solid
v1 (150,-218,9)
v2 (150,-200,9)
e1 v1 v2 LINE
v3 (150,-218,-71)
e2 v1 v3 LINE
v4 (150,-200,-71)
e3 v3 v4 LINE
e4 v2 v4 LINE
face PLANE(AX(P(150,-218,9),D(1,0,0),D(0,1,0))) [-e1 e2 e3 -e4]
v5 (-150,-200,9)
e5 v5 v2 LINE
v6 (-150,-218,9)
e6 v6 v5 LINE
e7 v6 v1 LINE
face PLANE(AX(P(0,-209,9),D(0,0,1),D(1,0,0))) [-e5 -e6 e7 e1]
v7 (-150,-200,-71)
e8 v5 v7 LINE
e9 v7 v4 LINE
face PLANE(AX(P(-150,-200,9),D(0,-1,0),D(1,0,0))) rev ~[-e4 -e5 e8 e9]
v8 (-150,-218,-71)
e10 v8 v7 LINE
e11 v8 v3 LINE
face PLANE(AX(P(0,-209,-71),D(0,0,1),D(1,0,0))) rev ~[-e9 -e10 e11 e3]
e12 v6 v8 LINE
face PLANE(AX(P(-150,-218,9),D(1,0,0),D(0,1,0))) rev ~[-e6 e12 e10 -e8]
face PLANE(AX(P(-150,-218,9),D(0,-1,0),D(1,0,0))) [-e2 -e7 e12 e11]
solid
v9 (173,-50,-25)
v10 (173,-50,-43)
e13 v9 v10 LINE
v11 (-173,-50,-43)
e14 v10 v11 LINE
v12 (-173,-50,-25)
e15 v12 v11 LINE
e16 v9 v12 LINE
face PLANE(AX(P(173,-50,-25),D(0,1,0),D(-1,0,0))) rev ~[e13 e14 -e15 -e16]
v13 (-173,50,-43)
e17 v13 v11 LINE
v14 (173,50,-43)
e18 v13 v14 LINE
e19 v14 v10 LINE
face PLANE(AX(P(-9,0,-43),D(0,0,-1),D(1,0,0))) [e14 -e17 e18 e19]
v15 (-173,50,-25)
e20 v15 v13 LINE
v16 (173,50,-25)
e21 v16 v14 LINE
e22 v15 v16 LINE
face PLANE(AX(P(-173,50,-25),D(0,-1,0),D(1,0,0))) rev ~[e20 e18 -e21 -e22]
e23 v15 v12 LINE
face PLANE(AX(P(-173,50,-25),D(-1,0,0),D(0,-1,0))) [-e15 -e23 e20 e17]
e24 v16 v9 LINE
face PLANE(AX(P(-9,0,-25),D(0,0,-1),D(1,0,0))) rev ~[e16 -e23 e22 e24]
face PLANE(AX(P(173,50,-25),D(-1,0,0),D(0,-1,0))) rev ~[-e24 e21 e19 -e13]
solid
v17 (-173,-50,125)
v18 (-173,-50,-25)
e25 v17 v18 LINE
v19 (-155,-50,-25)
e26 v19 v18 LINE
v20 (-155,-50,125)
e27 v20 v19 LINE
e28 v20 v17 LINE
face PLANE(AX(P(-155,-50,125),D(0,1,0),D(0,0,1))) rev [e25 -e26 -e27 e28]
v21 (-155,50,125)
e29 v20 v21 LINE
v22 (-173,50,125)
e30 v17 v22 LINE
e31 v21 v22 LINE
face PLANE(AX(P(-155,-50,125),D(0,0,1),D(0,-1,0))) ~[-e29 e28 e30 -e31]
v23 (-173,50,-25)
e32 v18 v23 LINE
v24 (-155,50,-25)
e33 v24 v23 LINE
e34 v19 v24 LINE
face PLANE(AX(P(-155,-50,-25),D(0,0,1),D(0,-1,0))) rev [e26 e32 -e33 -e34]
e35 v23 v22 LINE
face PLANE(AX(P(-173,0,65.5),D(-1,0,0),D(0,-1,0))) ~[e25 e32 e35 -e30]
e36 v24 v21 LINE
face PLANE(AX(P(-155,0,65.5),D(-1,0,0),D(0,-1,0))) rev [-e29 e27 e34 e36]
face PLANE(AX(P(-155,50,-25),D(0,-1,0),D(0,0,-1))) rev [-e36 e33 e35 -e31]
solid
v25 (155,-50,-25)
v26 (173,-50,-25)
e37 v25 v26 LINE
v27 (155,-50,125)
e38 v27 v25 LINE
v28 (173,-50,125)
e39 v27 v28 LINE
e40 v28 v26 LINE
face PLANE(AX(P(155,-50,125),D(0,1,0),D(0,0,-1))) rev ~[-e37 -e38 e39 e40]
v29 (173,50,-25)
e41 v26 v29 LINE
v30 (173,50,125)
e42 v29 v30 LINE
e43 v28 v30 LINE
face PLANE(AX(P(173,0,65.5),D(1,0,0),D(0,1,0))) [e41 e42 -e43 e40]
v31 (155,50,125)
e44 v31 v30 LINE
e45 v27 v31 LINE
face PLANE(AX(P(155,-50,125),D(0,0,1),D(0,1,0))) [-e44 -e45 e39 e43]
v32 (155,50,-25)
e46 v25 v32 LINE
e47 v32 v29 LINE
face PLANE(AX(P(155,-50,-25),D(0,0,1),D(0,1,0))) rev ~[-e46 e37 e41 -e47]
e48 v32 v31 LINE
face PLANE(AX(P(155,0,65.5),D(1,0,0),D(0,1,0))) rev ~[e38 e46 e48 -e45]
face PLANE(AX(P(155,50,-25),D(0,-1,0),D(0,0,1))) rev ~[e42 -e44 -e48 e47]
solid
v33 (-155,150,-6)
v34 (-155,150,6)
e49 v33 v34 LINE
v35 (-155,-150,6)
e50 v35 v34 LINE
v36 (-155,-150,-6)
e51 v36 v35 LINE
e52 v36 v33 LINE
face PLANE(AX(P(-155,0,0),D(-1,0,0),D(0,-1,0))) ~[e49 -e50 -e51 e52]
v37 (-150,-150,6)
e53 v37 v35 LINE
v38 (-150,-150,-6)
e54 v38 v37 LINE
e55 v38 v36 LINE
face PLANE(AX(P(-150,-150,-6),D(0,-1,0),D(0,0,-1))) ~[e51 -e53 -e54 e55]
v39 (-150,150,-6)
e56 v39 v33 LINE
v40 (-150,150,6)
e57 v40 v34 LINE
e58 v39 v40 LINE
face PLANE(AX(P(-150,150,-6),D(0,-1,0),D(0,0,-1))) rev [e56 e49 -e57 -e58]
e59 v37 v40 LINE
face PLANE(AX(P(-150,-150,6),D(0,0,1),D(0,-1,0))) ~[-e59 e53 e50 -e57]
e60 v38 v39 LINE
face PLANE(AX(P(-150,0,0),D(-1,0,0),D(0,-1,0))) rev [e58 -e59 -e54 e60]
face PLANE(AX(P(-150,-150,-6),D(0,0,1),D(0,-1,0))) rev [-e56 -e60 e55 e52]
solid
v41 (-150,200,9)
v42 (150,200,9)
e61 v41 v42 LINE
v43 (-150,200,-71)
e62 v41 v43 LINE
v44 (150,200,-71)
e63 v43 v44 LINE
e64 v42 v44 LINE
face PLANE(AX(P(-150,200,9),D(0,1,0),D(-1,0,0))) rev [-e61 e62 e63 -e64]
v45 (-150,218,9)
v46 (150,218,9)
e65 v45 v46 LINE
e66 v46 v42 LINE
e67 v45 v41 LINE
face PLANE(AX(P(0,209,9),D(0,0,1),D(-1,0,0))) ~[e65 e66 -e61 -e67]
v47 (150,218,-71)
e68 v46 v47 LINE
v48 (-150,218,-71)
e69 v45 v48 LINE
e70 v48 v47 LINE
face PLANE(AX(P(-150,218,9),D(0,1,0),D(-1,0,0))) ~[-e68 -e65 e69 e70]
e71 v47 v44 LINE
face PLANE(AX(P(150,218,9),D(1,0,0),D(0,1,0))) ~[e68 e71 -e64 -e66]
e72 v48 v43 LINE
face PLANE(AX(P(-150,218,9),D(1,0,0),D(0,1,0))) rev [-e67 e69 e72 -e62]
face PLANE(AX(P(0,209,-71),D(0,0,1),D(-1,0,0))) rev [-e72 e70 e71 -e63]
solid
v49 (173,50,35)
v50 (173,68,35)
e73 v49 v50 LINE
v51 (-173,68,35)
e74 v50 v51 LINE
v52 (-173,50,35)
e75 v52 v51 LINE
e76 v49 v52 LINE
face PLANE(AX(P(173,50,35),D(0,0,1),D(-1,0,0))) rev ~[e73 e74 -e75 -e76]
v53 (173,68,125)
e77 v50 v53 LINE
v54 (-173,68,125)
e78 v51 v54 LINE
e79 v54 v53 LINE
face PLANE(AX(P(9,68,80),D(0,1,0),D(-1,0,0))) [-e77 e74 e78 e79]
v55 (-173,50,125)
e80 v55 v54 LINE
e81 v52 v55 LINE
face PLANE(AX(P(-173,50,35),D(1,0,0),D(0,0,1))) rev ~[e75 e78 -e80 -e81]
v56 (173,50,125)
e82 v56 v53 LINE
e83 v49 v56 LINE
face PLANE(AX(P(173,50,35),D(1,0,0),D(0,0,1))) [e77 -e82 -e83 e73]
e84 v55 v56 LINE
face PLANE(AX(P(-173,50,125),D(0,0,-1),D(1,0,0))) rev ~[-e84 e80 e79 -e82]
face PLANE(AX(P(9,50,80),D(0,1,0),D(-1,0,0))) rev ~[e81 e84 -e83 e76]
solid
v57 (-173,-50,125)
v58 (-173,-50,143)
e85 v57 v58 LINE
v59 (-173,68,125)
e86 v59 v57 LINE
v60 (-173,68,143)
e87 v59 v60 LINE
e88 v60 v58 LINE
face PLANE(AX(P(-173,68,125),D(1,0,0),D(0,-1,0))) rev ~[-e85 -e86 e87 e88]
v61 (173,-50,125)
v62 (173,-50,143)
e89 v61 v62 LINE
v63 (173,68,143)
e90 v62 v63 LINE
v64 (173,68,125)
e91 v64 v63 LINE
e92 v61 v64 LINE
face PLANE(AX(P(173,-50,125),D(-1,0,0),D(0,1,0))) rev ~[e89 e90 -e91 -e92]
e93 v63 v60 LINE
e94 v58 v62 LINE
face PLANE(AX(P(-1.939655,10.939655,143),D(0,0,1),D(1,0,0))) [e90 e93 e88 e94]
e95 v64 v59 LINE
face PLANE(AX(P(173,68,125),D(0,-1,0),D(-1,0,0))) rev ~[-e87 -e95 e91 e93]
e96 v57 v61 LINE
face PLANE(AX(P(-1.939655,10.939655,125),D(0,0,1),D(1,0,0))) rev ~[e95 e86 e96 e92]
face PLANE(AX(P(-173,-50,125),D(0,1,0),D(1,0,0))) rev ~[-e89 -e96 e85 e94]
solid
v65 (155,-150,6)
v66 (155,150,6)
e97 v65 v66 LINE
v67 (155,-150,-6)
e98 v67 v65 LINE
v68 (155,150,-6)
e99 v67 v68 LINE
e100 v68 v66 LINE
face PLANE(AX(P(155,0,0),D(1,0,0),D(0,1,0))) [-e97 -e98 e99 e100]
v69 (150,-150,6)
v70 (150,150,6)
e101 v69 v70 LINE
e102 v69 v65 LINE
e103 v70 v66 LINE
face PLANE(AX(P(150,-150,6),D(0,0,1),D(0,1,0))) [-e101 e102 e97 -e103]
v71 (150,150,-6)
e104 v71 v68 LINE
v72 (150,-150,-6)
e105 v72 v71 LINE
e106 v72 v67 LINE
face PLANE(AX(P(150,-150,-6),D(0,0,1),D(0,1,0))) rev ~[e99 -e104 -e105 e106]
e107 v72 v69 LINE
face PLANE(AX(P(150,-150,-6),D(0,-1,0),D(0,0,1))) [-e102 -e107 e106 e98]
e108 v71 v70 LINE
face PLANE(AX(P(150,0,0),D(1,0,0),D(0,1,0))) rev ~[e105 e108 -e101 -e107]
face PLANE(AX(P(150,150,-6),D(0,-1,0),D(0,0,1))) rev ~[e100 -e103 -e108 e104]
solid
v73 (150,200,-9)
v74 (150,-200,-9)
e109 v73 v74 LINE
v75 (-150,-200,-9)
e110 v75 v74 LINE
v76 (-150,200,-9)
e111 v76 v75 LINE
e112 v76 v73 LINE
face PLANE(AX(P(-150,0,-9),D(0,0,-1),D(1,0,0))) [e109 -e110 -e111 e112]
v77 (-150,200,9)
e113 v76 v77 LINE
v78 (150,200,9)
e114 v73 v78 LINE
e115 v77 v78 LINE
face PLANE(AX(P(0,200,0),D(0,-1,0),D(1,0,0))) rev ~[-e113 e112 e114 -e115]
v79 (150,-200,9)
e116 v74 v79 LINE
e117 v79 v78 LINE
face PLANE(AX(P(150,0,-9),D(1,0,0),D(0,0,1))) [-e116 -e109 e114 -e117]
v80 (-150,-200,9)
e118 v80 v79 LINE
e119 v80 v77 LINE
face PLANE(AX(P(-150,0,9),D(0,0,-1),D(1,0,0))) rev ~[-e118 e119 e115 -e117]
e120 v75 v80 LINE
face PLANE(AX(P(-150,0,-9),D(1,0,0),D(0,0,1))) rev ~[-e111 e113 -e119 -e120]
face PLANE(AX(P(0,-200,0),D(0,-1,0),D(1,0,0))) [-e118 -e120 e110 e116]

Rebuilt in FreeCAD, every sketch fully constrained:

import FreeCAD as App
import Part
import Sketcher
Q = App.Units.Quantity

doc = App.newDocument("Part")
body = doc.addObject("PartDesign::Body", "Body")

# Sketch on XZ plane
sketch1 = doc.addObject("Sketcher::SketchObject", "Sketch")
body.addObject(sketch1)
sketch1.AttachmentSupport = (doc.XZ_Plane, [""])
sketch1.MapMode = "FlatFace"
sketch1.addGeometry(Part.LineSegment(App.Vector(-150, 9, 0), App.Vector(-150, -9, 0)), False)
sketch1.addGeometry(Part.LineSegment(App.Vector(-150, -9, 0), App.Vector(150, -9, 0)), False)
sketch1.addGeometry(Part.LineSegment(App.Vector(150, -9, 0), App.Vector(150, 9, 0)), False)
sketch1.addGeometry(Part.LineSegment(App.Vector(150, 9, 0), App.Vector(-150, 9, 0)), False)
sketch1.addConstraint(Sketcher.Constraint("Coincident", 0, 2, 1, 1))
sketch1.addConstraint(Sketcher.Constraint("Coincident", 1, 2, 2, 1))
sketch1.addConstraint(Sketcher.Constraint("Coincident", 2, 2, 3, 1))
sketch1.addConstraint(Sketcher.Constraint("Coincident", 3, 2, 0, 1))
sketch1.addConstraint(Sketcher.Constraint("Vertical", 0))
sketch1.addConstraint(Sketcher.Constraint("Horizontal", 1))
sketch1.addConstraint(Sketcher.Constraint("Vertical", 2))
sketch1.addConstraint(Sketcher.Constraint("Horizontal", 3))
sketch1.addConstraint(Sketcher.Constraint("Symmetric", 0, 2, 2, 2, -1, 1))
sketch1.addConstraint(Sketcher.Constraint("DistanceX", 1, 1, 1, 2, Q("300 mm")))
sketch1.addConstraint(Sketcher.Constraint("DistanceY", 0, 2, 0, 1, Q("18 mm")))
pad1 = doc.addObject("PartDesign::Pad", "Pad")
body.addObject(pad1)
pad1.Profile = sketch1
pad1.Length = 400
pad1.Midplane = True
body2 = doc.addObject("PartDesign::Body", "Body001")

# Sketch on XY plane
sketch2 = doc.addObject("Sketcher::SketchObject", "Sketch001")
body2.addObject(sketch2)
sketch2.AttachmentSupport = (doc.getObject("XY_Plane001"), [""])
sketch2.MapMode = "FlatFace"
sketch2.AttachmentOffset = App.Placement(App.Vector(0, 0, 9), App.Rotation())
sketch2.addGeometry(Part.LineSegment(App.Vector(-150, -200, 0), App.Vector(-150, -218, 0)), False)
sketch2.addGeometry(Part.LineSegment(App.Vector(-150, -218, 0), App.Vector(150, -218, 0)), False)
sketch2.addGeometry(Part.LineSegment(App.Vector(150, -218, 0), App.Vector(150, -200, 0)), False)
sketch2.addGeometry(Part.LineSegment(App.Vector(150, -200, 0), App.Vector(-150, -200, 0)), False)
sketch2.addConstraint(Sketcher.Constraint("Coincident", 0, 2, 1, 1))
sketch2.addConstraint(Sketcher.Constraint("Coincident", 1, 2, 2, 1))
sketch2.addConstraint(Sketcher.Constraint("Coincident", 2, 2, 3, 1))
sketch2.addConstraint(Sketcher.Constraint("Coincident", 3, 2, 0, 1))
sketch2.addConstraint(Sketcher.Constraint("Vertical", 0))
sketch2.addConstraint(Sketcher.Constraint("Horizontal", 1))
sketch2.addConstraint(Sketcher.Constraint("Vertical", 2))
sketch2.addConstraint(Sketcher.Constraint("Horizontal", 3))
sketch2.addConstraint(Sketcher.Constraint("DistanceX", 1, 1, 1, 2, Q("300 mm")))
sketch2.addConstraint(Sketcher.Constraint("DistanceY", 0, 2, 0, 1, Q("18 mm")))
sketch2.addConstraint(Sketcher.Constraint("DistanceX", 0, 2, -1, 1, Q("150 mm")))
sketch2.addConstraint(Sketcher.Constraint("DistanceY", 0, 2, -1, 1, Q("218 mm")))
pad2 = doc.addObject("PartDesign::Pad", "Pad001")
body2.addObject(pad2)
pad2.Profile = sketch2
pad2.Length = 80
pad2.Reversed = True
body3 = doc.addObject("PartDesign::Body", "Body002")
doc.recompute()

mirroring = doc.addObject("Part::Mirroring", "Mirroring")
mirroring.Source = body2
mirroring.Base = App.Vector(0, 0, 0)
mirroring.Normal = App.Vector(0, -1, 0)
body3.BaseFeature = mirroring
doc.recompute()
body4 = doc.addObject("PartDesign::Body", "Body003")

# Sketch on YZ plane
sketch3 = doc.addObject("Sketcher::SketchObject", "Sketch002")
body4.addObject(sketch3)
sketch3.AttachmentSupport = (doc.getObject("YZ_Plane003"), [""])
sketch3.MapMode = "FlatFace"
sketch3.AttachmentOffset = App.Placement(App.Vector(0, 0, 150), App.Rotation())
sketch3.addGeometry(Part.LineSegment(App.Vector(-150, 6, 0), App.Vector(-150, -6, 0)), False)
sketch3.addGeometry(Part.LineSegment(App.Vector(-150, -6, 0), App.Vector(150, -6, 0)), False)
sketch3.addGeometry(Part.LineSegment(App.Vector(150, -6, 0), App.Vector(150, 6, 0)), False)
sketch3.addGeometry(Part.LineSegment(App.Vector(150, 6, 0), App.Vector(-150, 6, 0)), False)
sketch3.addConstraint(Sketcher.Constraint("Coincident", 0, 2, 1, 1))
sketch3.addConstraint(Sketcher.Constraint("Coincident", 1, 2, 2, 1))
sketch3.addConstraint(Sketcher.Constraint("Coincident", 2, 2, 3, 1))
sketch3.addConstraint(Sketcher.Constraint("Coincident", 3, 2, 0, 1))
sketch3.addConstraint(Sketcher.Constraint("Vertical", 0))
sketch3.addConstraint(Sketcher.Constraint("Horizontal", 1))
sketch3.addConstraint(Sketcher.Constraint("Vertical", 2))
sketch3.addConstraint(Sketcher.Constraint("Horizontal", 3))
sketch3.addConstraint(Sketcher.Constraint("Symmetric", 0, 2, 2, 2, -1, 1))
sketch3.addConstraint(Sketcher.Constraint("DistanceX", 1, 1, 1, 2, Q("300 mm")))
sketch3.addConstraint(Sketcher.Constraint("DistanceY", 0, 2, 0, 1, Q("12 mm")))
pad3 = doc.addObject("PartDesign::Pad", "Pad002")
body4.addObject(pad3)
pad3.Profile = sketch3
pad3.Length = 5
body5 = doc.addObject("PartDesign::Body", "Body004")
doc.recompute()

mirroring2 = doc.addObject("Part::Mirroring", "Mirroring001")
mirroring2.Source = body4
mirroring2.Base = App.Vector(0, 0, 0)
mirroring2.Normal = App.Vector(1, 0, 0)
body5.BaseFeature = mirroring2
doc.recompute()
body6 = doc.addObject("PartDesign::Body", "Body005")

# Sketch on YZ plane
sketch4 = doc.addObject("Sketcher::SketchObject", "Sketch003")
body6.addObject(sketch4)
sketch4.AttachmentSupport = (doc.getObject("YZ_Plane005"), [""])
sketch4.MapMode = "FlatFace"
sketch4.AttachmentOffset = App.Placement(App.Vector(0, 0, 155), App.Rotation())
sketch4.addGeometry(Part.LineSegment(App.Vector(-50, 125, 0), App.Vector(-50, -25, 0)), False)
sketch4.addGeometry(Part.LineSegment(App.Vector(-50, -25, 0), App.Vector(50, -25, 0)), False)
sketch4.addGeometry(Part.LineSegment(App.Vector(50, -25, 0), App.Vector(50, 125, 0)), False)
sketch4.addGeometry(Part.LineSegment(App.Vector(50, 125, 0), App.Vector(-50, 125, 0)), False)
sketch4.addConstraint(Sketcher.Constraint("Coincident", 0, 2, 1, 1))
sketch4.addConstraint(Sketcher.Constraint("Coincident", 1, 2, 2, 1))
sketch4.addConstraint(Sketcher.Constraint("Coincident", 2, 2, 3, 1))
sketch4.addConstraint(Sketcher.Constraint("Coincident", 3, 2, 0, 1))
sketch4.addConstraint(Sketcher.Constraint("Vertical", 0))
sketch4.addConstraint(Sketcher.Constraint("Horizontal", 1))
sketch4.addConstraint(Sketcher.Constraint("Vertical", 2))
sketch4.addConstraint(Sketcher.Constraint("Horizontal", 3))
sketch4.addConstraint(Sketcher.Constraint("DistanceX", 1, 1, 1, 2, Q("100 mm")))
sketch4.addConstraint(Sketcher.Constraint("DistanceY", 0, 2, 0, 1, Q("150 mm")))
sketch4.addConstraint(Sketcher.Constraint("DistanceX", 0, 2, -1, 1, Q("50 mm")))
sketch4.addConstraint(Sketcher.Constraint("DistanceY", 0, 2, -1, 1, Q("25 mm")))
pad4 = doc.addObject("PartDesign::Pad", "Pad003")
body6.addObject(pad4)
pad4.Profile = sketch4
pad4.Length = 18
body7 = doc.addObject("PartDesign::Body", "Body006")
doc.recompute()

mirroring3 = doc.addObject("Part::Mirroring", "Mirroring002")
mirroring3.Source = body6
mirroring3.Base = App.Vector(0, 0, 0)
mirroring3.Normal = App.Vector(1, 0, 0)
body7.BaseFeature = mirroring3
doc.recompute()
body8 = doc.addObject("PartDesign::Body", "Body007")

# Sketch on XY plane
sketch5 = doc.addObject("Sketcher::SketchObject", "Sketch004")
body8.addObject(sketch5)
sketch5.AttachmentSupport = (doc.getObject("XY_Plane007"), [""])
sketch5.MapMode = "FlatFace"
sketch5.AttachmentOffset = App.Placement(App.Vector(0, 0, -25), App.Rotation())
sketch5.addGeometry(Part.LineSegment(App.Vector(-173, -50, 0), App.Vector(-173, 50, 0)), False)
sketch5.addGeometry(Part.LineSegment(App.Vector(-173, 50, 0), App.Vector(173, 50, 0)), False)
sketch5.addGeometry(Part.LineSegment(App.Vector(173, 50, 0), App.Vector(173, -50, 0)), False)
sketch5.addGeometry(Part.LineSegment(App.Vector(173, -50, 0), App.Vector(-173, -50, 0)), False)
sketch5.addConstraint(Sketcher.Constraint("Coincident", 0, 2, 1, 1))
sketch5.addConstraint(Sketcher.Constraint("Coincident", 1, 2, 2, 1))
sketch5.addConstraint(Sketcher.Constraint("Coincident", 2, 2, 3, 1))
sketch5.addConstraint(Sketcher.Constraint("Coincident", 3, 2, 0, 1))
sketch5.addConstraint(Sketcher.Constraint("Vertical", 0))
sketch5.addConstraint(Sketcher.Constraint("Horizontal", 1))
sketch5.addConstraint(Sketcher.Constraint("Vertical", 2))
sketch5.addConstraint(Sketcher.Constraint("Horizontal", 3))
sketch5.addConstraint(Sketcher.Constraint("Symmetric", 0, 2, 2, 2, -1, 1))
sketch5.addConstraint(Sketcher.Constraint("DistanceX", 1, 1, 1, 2, Q("346 mm")))
sketch5.addConstraint(Sketcher.Constraint("DistanceY", 0, 1, 0, 2, Q("100 mm")))
pad5 = doc.addObject("PartDesign::Pad", "Pad004")
body8.addObject(pad5)
pad5.Profile = sketch5
pad5.Length = 18
pad5.Reversed = True
body9 = doc.addObject("PartDesign::Body", "Body008")

# Sketch on XZ plane
sketch6 = doc.addObject("Sketcher::SketchObject", "Sketch005")
body9.addObject(sketch6)
sketch6.AttachmentSupport = (doc.getObject("XZ_Plane008"), [""])
sketch6.MapMode = "FlatFace"
sketch6.AttachmentOffset = App.Placement(App.Vector(0, 0, -50), App.Rotation())
sketch6.addGeometry(Part.LineSegment(App.Vector(173, 125, 0), App.Vector(173, 35, 0)), False)
sketch6.addGeometry(Part.LineSegment(App.Vector(173, 35, 0), App.Vector(-173, 35, 0)), False)
sketch6.addGeometry(Part.LineSegment(App.Vector(-173, 35, 0), App.Vector(-173, 125, 0)), False)
sketch6.addGeometry(Part.LineSegment(App.Vector(-173, 125, 0), App.Vector(173, 125, 0)), False)
sketch6.addConstraint(Sketcher.Constraint("Coincident", 0, 2, 1, 1))
sketch6.addConstraint(Sketcher.Constraint("Coincident", 1, 2, 2, 1))
sketch6.addConstraint(Sketcher.Constraint("Coincident", 2, 2, 3, 1))
sketch6.addConstraint(Sketcher.Constraint("Coincident", 3, 2, 0, 1))
sketch6.addConstraint(Sketcher.Constraint("Vertical", 0))
sketch6.addConstraint(Sketcher.Constraint("Horizontal", 1))
sketch6.addConstraint(Sketcher.Constraint("Vertical", 2))
sketch6.addConstraint(Sketcher.Constraint("Horizontal", 3))
sketch6.addConstraint(Sketcher.Constraint("DistanceX", 1, 2, 1, 1, Q("346 mm")))
sketch6.addConstraint(Sketcher.Constraint("DistanceY", 0, 2, 0, 1, Q("90 mm")))
sketch6.addConstraint(Sketcher.Constraint("DistanceX", -1, 1, 0, 2, Q("173 mm")))
sketch6.addConstraint(Sketcher.Constraint("DistanceY", -1, 1, 0, 2, Q("35 mm")))
pad6 = doc.addObject("PartDesign::Pad", "Pad005")
body9.addObject(pad6)
pad6.Profile = sketch6
pad6.Length = 18
pad6.Reversed = True
body10 = doc.addObject("PartDesign::Body", "Body009")

# Sketch on XY plane
sketch7 = doc.addObject("Sketcher::SketchObject", "Sketch006")
body10.addObject(sketch7)
sketch7.AttachmentSupport = (doc.getObject("XY_Plane009"), [""])
sketch7.MapMode = "FlatFace"
sketch7.AttachmentOffset = App.Placement(App.Vector(0, 0, 125), App.Rotation())
sketch7.addGeometry(Part.LineSegment(App.Vector(-173, -50, 0), App.Vector(173, -50, 0)), False)
sketch7.addGeometry(Part.LineSegment(App.Vector(173, -50, 0), App.Vector(173, 68, 0)), False)
sketch7.addGeometry(Part.LineSegment(App.Vector(173, 68, 0), App.Vector(-173, 68, 0)), False)
sketch7.addGeometry(Part.LineSegment(App.Vector(-173, 68, 0), App.Vector(-173, -50, 0)), False)
sketch7.addConstraint(Sketcher.Constraint("Coincident", 0, 2, 1, 1))
sketch7.addConstraint(Sketcher.Constraint("Coincident", 1, 2, 2, 1))
sketch7.addConstraint(Sketcher.Constraint("Coincident", 2, 2, 3, 1))
sketch7.addConstraint(Sketcher.Constraint("Coincident", 3, 2, 0, 1))
sketch7.addConstraint(Sketcher.Constraint("Horizontal", 0))
sketch7.addConstraint(Sketcher.Constraint("Vertical", 1))
sketch7.addConstraint(Sketcher.Constraint("Horizontal", 2))
sketch7.addConstraint(Sketcher.Constraint("Vertical", 3))
sketch7.addConstraint(Sketcher.Constraint("DistanceX", 0, 1, 0, 2, Q("346 mm")))
sketch7.addConstraint(Sketcher.Constraint("DistanceY", 1, 1, 1, 2, Q("118 mm")))
sketch7.addConstraint(Sketcher.Constraint("DistanceX", -1, 1, 0, 2, Q("173 mm")))
sketch7.addConstraint(Sketcher.Constraint("DistanceY", 0, 2, -1, 1, Q("50 mm")))
pad7 = doc.addObject("PartDesign::Pad", "Pad006")
body10.addObject(pad7)
pad7.Profile = sketch7
pad7.Length = 18
mirroring.Visibility = False
mirroring2.Visibility = False
mirroring3.Visibility = False

doc.recompute()
